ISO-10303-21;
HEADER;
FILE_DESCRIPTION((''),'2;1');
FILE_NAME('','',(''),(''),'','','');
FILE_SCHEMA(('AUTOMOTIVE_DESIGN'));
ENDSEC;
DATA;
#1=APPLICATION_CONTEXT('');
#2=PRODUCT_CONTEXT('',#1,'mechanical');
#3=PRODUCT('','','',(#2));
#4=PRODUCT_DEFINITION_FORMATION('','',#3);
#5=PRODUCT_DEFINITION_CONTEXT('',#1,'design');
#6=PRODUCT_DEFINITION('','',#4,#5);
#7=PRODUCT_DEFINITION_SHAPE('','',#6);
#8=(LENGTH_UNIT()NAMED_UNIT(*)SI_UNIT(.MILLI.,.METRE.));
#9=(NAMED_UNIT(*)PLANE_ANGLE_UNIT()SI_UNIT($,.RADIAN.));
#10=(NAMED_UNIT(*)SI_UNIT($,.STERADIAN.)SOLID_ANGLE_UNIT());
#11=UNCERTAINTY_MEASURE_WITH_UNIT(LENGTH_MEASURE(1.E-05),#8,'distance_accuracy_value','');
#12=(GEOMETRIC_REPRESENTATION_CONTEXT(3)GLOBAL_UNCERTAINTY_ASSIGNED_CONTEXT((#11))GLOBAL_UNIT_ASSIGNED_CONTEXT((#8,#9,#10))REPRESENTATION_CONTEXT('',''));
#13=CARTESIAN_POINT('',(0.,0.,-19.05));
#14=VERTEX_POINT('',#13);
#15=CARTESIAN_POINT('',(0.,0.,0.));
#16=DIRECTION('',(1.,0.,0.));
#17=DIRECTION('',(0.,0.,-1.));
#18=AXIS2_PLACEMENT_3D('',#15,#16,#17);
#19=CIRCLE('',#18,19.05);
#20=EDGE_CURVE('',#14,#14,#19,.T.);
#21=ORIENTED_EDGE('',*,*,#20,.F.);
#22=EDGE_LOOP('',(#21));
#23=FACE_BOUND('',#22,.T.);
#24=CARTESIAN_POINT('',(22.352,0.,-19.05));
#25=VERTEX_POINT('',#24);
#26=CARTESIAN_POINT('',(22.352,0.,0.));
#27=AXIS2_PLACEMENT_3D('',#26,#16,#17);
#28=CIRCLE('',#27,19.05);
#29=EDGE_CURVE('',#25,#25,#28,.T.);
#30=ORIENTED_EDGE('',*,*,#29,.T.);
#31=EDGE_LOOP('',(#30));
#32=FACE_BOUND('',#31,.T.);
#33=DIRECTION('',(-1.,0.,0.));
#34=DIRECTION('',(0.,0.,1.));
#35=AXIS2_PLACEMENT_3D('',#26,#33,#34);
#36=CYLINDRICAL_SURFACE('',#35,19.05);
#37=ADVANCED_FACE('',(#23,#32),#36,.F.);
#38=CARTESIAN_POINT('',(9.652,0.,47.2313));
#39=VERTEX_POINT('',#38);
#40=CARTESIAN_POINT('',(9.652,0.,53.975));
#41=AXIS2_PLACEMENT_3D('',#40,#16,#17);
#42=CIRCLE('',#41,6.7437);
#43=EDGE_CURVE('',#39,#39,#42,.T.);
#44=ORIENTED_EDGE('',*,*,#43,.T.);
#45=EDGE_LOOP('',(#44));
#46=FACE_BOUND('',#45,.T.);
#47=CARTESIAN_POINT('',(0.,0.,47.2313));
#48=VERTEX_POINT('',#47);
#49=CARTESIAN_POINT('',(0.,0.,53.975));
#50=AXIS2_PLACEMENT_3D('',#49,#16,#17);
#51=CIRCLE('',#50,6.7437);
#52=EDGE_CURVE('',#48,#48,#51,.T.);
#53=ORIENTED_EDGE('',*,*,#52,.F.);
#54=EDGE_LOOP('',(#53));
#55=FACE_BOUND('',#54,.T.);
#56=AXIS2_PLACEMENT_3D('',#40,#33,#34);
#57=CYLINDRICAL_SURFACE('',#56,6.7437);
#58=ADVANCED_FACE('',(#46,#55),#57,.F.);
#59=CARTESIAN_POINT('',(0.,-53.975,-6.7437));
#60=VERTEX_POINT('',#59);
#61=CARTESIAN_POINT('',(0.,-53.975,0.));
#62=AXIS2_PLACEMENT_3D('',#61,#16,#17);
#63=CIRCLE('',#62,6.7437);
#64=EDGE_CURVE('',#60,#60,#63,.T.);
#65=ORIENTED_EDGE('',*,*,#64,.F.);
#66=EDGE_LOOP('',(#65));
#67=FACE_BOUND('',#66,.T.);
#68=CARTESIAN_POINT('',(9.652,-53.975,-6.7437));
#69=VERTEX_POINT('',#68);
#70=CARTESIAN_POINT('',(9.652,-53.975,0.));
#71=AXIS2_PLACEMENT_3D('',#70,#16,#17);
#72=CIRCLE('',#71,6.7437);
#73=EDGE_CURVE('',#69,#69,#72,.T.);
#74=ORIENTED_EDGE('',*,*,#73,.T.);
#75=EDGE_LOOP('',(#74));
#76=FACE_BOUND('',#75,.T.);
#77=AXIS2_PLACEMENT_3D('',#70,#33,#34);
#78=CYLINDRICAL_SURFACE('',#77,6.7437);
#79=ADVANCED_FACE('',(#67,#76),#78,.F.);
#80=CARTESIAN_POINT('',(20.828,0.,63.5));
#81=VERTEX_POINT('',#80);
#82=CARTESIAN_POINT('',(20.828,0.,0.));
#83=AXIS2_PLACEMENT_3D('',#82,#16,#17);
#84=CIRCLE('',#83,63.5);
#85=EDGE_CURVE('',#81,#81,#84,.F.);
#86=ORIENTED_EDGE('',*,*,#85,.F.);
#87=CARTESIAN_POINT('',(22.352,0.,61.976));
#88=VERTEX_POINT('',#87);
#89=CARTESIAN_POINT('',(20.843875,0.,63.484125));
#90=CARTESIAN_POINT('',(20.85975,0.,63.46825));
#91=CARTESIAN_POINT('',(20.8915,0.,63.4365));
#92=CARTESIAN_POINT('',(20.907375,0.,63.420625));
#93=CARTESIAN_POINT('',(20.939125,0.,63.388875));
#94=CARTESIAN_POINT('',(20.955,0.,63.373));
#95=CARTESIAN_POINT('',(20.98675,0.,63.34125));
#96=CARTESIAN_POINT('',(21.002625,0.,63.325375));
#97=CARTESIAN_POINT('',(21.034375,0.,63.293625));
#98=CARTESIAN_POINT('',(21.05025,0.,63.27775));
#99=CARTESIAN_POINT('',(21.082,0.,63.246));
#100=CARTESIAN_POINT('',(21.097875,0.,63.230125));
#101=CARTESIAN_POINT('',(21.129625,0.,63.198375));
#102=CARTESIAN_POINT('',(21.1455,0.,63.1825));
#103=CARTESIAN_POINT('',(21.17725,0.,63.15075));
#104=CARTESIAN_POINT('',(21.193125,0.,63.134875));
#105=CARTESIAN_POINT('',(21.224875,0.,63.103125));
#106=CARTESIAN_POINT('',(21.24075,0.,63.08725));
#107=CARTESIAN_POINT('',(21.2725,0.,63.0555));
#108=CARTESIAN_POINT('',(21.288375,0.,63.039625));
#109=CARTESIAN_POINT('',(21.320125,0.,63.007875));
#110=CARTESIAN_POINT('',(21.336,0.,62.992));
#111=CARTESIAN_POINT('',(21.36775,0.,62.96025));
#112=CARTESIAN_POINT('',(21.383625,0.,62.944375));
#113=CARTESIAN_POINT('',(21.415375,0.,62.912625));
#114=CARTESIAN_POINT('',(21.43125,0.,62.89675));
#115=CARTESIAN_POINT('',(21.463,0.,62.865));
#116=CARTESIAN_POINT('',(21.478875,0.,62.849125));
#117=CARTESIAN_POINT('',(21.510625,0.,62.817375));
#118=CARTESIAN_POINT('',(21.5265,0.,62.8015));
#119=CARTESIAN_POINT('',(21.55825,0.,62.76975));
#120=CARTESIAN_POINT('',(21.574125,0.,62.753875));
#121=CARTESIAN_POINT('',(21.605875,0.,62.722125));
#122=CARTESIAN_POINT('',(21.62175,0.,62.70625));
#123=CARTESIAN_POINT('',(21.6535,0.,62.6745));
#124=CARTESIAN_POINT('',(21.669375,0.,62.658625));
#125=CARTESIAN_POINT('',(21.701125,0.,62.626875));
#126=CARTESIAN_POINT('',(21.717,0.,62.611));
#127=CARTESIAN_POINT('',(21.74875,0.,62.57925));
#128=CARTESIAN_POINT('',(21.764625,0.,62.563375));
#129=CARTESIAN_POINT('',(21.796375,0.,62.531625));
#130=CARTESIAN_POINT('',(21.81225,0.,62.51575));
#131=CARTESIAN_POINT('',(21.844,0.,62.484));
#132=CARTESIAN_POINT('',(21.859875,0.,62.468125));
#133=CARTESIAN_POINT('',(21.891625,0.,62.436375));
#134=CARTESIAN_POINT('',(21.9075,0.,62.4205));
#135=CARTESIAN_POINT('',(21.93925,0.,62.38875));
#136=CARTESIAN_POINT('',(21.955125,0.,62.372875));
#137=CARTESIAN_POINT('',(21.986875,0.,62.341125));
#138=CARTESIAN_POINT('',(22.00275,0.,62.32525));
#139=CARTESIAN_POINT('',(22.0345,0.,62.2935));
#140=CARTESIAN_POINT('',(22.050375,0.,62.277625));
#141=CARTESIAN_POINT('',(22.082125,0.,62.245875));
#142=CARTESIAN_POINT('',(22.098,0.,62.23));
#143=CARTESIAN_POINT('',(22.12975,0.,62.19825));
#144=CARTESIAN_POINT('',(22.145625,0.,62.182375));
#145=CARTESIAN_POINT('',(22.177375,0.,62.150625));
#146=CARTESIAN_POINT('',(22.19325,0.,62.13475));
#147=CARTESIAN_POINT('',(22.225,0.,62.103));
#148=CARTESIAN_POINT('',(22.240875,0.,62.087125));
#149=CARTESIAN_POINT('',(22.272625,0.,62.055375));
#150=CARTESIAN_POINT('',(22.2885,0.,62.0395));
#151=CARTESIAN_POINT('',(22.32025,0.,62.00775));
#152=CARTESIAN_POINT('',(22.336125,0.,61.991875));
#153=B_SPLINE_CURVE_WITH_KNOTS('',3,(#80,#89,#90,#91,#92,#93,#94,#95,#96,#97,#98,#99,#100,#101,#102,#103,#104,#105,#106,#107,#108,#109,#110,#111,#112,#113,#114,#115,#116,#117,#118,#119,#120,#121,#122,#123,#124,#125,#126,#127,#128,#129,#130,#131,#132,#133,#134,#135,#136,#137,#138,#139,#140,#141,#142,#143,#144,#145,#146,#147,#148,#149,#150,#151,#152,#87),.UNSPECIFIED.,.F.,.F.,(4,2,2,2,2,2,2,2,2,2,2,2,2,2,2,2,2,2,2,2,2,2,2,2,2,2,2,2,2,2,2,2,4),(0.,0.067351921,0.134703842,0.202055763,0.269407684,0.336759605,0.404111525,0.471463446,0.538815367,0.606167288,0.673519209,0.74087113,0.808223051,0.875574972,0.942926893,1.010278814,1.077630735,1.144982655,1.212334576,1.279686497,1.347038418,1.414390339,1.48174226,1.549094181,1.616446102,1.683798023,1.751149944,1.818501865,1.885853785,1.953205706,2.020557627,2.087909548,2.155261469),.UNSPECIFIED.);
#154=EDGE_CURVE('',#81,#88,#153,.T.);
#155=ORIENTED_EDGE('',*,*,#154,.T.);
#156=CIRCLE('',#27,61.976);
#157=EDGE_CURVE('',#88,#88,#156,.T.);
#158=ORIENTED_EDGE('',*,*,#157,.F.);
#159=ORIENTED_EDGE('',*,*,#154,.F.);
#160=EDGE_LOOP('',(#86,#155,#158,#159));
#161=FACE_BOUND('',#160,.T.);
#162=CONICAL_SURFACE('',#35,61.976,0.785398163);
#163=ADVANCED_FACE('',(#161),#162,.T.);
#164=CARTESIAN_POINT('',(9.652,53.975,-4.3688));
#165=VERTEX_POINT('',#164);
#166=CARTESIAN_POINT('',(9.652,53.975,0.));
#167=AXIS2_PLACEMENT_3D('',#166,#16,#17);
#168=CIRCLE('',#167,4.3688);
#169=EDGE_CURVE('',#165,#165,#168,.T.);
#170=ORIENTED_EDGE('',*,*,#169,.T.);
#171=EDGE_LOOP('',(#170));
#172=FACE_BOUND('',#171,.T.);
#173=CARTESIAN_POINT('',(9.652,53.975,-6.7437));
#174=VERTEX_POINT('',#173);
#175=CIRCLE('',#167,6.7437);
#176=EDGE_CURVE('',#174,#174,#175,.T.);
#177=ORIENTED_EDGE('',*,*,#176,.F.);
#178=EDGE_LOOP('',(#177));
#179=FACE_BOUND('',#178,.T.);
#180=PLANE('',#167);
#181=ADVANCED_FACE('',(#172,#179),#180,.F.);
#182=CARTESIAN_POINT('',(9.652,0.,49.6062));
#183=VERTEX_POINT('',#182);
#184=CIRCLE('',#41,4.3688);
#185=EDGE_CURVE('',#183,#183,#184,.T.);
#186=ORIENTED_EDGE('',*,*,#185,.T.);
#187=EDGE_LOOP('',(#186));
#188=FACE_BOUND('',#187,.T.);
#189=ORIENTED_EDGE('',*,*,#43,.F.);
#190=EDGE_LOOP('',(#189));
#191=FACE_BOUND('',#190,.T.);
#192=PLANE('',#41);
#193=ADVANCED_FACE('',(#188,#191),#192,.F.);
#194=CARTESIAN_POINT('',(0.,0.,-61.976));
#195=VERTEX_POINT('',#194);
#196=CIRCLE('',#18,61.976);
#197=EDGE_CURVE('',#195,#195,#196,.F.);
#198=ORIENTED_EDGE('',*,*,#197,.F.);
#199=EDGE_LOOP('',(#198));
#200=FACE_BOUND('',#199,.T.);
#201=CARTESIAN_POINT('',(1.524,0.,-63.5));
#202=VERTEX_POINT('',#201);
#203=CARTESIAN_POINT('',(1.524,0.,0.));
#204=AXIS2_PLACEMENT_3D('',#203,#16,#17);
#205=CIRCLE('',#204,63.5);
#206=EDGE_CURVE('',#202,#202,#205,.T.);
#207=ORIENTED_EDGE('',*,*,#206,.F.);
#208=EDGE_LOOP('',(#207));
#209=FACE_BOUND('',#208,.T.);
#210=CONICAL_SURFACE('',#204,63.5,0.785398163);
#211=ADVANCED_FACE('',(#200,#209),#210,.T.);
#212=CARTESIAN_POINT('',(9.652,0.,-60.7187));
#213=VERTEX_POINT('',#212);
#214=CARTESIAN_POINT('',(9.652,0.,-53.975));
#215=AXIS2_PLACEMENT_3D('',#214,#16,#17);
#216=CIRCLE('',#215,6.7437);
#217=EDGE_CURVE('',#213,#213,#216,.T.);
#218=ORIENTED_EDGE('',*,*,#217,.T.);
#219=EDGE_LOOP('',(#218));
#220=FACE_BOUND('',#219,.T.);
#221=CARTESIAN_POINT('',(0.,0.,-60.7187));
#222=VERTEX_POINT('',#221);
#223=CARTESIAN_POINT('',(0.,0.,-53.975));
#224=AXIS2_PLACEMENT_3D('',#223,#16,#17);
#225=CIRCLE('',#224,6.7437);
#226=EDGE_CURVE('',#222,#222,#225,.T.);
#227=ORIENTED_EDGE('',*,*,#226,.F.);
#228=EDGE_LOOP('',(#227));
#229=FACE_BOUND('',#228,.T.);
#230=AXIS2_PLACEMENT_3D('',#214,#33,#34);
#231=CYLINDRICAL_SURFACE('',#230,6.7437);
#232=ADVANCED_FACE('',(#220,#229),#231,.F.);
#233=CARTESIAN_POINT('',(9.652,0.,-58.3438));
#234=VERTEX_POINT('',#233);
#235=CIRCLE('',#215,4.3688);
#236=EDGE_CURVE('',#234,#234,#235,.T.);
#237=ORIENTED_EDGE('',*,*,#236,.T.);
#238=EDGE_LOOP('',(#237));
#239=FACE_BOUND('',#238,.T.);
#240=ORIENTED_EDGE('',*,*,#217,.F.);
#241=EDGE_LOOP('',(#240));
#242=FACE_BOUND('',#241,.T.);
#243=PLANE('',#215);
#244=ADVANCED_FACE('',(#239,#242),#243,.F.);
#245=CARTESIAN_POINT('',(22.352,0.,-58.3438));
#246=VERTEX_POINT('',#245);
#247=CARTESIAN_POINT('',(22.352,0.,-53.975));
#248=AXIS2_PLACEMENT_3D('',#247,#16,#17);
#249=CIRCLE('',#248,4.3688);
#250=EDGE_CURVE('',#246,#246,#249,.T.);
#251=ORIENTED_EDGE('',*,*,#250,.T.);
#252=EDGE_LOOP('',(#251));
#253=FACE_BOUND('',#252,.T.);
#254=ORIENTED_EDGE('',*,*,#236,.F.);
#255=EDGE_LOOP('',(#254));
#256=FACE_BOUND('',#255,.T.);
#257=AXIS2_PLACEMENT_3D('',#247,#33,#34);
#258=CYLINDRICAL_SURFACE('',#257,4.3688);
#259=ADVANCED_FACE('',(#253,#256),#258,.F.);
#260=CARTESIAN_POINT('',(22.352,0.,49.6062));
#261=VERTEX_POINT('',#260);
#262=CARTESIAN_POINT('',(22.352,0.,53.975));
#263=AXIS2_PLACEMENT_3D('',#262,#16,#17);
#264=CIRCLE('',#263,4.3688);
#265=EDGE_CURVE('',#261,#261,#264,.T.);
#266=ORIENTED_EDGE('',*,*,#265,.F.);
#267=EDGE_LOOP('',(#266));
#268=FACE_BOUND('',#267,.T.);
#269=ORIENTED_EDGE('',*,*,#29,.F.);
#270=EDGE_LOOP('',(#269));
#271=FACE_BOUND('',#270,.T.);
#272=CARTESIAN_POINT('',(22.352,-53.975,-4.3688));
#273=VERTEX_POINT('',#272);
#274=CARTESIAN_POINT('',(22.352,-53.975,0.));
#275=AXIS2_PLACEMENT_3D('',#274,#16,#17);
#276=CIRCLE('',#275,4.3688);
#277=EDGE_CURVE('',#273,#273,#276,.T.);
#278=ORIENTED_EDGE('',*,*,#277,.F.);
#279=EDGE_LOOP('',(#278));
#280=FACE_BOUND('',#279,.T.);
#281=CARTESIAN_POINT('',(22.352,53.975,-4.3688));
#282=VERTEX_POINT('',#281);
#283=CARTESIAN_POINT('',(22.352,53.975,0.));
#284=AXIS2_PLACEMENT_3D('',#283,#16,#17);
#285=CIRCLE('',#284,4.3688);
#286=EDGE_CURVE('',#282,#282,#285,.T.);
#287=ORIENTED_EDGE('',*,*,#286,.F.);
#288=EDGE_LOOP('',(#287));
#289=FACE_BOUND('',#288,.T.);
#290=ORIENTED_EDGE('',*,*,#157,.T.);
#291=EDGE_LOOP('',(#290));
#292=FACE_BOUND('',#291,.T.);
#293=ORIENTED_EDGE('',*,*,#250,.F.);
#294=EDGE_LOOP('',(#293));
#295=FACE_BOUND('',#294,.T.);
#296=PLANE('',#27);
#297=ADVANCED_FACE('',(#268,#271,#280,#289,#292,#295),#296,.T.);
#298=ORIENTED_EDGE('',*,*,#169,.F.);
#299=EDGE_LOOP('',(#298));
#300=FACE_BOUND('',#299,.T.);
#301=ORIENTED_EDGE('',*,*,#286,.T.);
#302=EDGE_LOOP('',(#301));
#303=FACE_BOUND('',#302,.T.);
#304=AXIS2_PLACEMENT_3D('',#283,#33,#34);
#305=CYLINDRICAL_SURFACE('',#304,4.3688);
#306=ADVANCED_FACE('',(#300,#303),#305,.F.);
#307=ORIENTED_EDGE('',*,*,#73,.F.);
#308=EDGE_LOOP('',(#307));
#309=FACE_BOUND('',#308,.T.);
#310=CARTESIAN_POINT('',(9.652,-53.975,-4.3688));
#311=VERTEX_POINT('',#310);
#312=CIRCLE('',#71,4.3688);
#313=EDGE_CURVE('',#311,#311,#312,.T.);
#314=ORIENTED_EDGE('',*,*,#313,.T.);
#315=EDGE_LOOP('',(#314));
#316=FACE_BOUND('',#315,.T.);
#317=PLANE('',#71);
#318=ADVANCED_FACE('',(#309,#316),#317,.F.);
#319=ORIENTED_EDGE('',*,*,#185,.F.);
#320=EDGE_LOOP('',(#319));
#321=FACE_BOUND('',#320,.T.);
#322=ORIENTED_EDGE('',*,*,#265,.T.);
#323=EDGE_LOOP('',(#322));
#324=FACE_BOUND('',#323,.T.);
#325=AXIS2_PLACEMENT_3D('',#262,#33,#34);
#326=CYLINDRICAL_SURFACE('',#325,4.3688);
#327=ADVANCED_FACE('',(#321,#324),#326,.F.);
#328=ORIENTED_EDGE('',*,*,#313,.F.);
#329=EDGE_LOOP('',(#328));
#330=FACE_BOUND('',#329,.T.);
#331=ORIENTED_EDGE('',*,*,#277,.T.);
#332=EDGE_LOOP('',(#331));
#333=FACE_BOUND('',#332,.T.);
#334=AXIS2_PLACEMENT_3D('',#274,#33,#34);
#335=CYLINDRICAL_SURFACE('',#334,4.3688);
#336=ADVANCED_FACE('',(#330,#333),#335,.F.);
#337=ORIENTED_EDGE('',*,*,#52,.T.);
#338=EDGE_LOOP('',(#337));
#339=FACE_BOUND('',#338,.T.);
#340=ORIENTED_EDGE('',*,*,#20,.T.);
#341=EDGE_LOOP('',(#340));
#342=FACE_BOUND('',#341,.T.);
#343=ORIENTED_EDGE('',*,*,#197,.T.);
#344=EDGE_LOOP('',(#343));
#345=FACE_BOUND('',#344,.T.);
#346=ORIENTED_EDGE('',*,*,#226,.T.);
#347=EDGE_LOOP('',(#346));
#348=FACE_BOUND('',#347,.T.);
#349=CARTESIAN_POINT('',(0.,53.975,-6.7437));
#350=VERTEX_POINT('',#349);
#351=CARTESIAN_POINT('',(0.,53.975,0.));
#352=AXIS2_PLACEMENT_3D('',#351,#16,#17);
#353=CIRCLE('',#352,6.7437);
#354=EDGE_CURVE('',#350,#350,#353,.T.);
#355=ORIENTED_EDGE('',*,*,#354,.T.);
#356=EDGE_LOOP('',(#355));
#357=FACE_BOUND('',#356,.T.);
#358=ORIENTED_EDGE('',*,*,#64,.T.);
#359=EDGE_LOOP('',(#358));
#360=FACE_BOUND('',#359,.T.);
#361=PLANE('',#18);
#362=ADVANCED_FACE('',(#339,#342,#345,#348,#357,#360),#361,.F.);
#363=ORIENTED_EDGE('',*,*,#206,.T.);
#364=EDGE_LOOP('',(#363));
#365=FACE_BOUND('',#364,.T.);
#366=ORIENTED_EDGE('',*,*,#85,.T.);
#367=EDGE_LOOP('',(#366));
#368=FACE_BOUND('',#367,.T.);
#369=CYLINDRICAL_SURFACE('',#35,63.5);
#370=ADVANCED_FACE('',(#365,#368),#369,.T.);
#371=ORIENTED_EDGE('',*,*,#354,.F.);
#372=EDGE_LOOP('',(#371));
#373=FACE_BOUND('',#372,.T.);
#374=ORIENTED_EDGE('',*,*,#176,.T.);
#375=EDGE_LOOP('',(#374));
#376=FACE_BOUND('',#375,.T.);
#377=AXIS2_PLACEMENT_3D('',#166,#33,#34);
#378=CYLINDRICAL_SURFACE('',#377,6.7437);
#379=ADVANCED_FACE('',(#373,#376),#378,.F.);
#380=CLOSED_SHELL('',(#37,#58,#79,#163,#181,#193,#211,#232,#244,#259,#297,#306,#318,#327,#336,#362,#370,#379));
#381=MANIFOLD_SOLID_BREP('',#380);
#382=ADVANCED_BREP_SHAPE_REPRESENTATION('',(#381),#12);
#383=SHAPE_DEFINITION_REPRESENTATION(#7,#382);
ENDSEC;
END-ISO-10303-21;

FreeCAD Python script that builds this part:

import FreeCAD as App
import Part
import Sketcher

V = App.Vector
Q = App.Units.Quantity


def edges_at(feature, points):
    """Names of the edges that pass closest to the given points."""
    edges = feature.Shape.Edges
    near = lambda p: min(range(len(edges)), key=lambda i: edges[i].distToShape(Part.Vertex(*p))[0])
    return sorted({f"Edge{near(p) + 1}" for p in points})

doc = App.newDocument("Part")
body = doc.addObject("PartDesign::Body", "Body")

sketch1 = body.newObject("Sketcher::SketchObject", "Sketch")
sketch1.AttachmentSupport = (doc.getObject("YZ_Plane"), [""])
sketch1.MapMode = "FlatFace"
sketch1.addGeometry(Part.Circle(V(0, 0, 0), V(0, 0, 1), 64), False)
sketch1.addConstraint([
    Sketcher.Constraint("Coincident", 0, 3, -1, 1),
    Sketcher.Constraint("Diameter", 0, Q("5 in")),
])
pad1 = body.newObject("PartDesign::Pad", "Pad")
pad1.Profile = sketch1
pad1.Length = Q("0.88 in")

sketch2 = body.newObject("Sketcher::SketchObject", "Sketch001")
sketch2.AttachmentSupport = (doc.getObject("YZ_Plane"), [""])
sketch2.MapMode = "FlatFace"
sketch2.addGeometry(Part.Circle(V(0, 0, 0), V(0, 0, 1), 19), False)
sketch2.addConstraint([
    Sketcher.Constraint("Coincident", 0, 3, -1, 1),
    Sketcher.Constraint("Diameter", 0, Q("1.5 in")),
])
pocket1 = body.newObject("PartDesign::Pocket", "Pocket")
pocket1.Profile = sketch2
pocket1.Type = "ThroughAll"
pocket1.Reversed = True

sketch3 = body.newObject("Sketcher::SketchObject", "Sketch002")
sketch3.AttachmentSupport = (doc.getObject("YZ_Plane"), [""])
sketch3.MapMode = "FlatFace"
sketch3.addGeometry([
    Part.Circle(V(54, 0, 0), V(0, 0, 1), 4.4),
    Part.Circle(V(0, 54, 0), V(0, 0, 1), 4.4),
    Part.Circle(V(-54, 0, 0), V(0, 0, 1), 4.4),
    Part.Circle(V(0, -54, 0), V(0, 0, 1), 4.4),
], False)
sketch3.addConstraint([
    Sketcher.Constraint("Equal", 0, 1),
    Sketcher.Constraint("Equal", 1, 2),
    Sketcher.Constraint("Equal", 2, 3),
    Sketcher.Constraint("Symmetric", 0, 3, 2, 3, -1, 1),
    Sketcher.Constraint("Symmetric", 1, 3, 3, 3, -1, 1),
    Sketcher.Constraint("PointOnObject", 0, 3, -1),
    Sketcher.Constraint("PointOnObject", 1, 3, -2),
    Sketcher.Constraint("Diameter", 0, Q("0.344 in")),
    Sketcher.Constraint("DistanceX", 2, 3, 0, 3, Q("4.25 in")),
    Sketcher.Constraint("DistanceY", 3, 3, 1, 3, Q("4.25 in")),
])
pocket2 = body.newObject("PartDesign::Pocket", "Pocket001")
pocket2.Profile = sketch3
pocket2.Type = "ThroughAll"
pocket2.Reversed = True

sketch4 = body.newObject("Sketcher::SketchObject", "Sketch003")
sketch4.AttachmentSupport = (doc.getObject("YZ_Plane"), [""])
sketch4.MapMode = "FlatFace"
sketch4.addGeometry([
    Part.Circle(V(54, 0, 0), V(0, 0, 1), 7),
    Part.Circle(V(0, 54, 0), V(0, 0, 1), 7),
    Part.Circle(V(-54, 0, 0), V(0, 0, 1), 7),
    Part.Circle(V(0, -54, 0), V(0, 0, 1), 7),
], False)
sketch4.addConstraint([
    Sketcher.Constraint("Equal", 0, 1),
    Sketcher.Constraint("Equal", 1, 2),
    Sketcher.Constraint("Equal", 2, 3),
    Sketcher.Constraint("Symmetric", 0, 3, 2, 3, -1, 1),
    Sketcher.Constraint("Symmetric", 1, 3, 3, 3, -1, 1),
    Sketcher.Constraint("PointOnObject", 0, 3, -1),
    Sketcher.Constraint("PointOnObject", 1, 3, -2),
    Sketcher.Constraint("Diameter", 0, Q("0.531 in")),
    Sketcher.Constraint("DistanceX", 2, 3, 0, 3, Q("4.25 in")),
    Sketcher.Constraint("DistanceY", 3, 3, 1, 3, Q("4.25 in")),
])
pocket3 = body.newObject("PartDesign::Pocket", "Pocket002")
pocket3.Profile = sketch4
pocket3.Length = Q("0.38 in")
pocket3.Reversed = True
doc.recompute()

chamfer = body.newObject("PartDesign::Chamfer", "Chamfer")
chamfer.Base = (pocket3, edges_at(pocket3, [(0, 0, 63.5), (22.352, 0, 63.5)]))
chamfer.Size = Q("0.06 in")

doc.recompute()
